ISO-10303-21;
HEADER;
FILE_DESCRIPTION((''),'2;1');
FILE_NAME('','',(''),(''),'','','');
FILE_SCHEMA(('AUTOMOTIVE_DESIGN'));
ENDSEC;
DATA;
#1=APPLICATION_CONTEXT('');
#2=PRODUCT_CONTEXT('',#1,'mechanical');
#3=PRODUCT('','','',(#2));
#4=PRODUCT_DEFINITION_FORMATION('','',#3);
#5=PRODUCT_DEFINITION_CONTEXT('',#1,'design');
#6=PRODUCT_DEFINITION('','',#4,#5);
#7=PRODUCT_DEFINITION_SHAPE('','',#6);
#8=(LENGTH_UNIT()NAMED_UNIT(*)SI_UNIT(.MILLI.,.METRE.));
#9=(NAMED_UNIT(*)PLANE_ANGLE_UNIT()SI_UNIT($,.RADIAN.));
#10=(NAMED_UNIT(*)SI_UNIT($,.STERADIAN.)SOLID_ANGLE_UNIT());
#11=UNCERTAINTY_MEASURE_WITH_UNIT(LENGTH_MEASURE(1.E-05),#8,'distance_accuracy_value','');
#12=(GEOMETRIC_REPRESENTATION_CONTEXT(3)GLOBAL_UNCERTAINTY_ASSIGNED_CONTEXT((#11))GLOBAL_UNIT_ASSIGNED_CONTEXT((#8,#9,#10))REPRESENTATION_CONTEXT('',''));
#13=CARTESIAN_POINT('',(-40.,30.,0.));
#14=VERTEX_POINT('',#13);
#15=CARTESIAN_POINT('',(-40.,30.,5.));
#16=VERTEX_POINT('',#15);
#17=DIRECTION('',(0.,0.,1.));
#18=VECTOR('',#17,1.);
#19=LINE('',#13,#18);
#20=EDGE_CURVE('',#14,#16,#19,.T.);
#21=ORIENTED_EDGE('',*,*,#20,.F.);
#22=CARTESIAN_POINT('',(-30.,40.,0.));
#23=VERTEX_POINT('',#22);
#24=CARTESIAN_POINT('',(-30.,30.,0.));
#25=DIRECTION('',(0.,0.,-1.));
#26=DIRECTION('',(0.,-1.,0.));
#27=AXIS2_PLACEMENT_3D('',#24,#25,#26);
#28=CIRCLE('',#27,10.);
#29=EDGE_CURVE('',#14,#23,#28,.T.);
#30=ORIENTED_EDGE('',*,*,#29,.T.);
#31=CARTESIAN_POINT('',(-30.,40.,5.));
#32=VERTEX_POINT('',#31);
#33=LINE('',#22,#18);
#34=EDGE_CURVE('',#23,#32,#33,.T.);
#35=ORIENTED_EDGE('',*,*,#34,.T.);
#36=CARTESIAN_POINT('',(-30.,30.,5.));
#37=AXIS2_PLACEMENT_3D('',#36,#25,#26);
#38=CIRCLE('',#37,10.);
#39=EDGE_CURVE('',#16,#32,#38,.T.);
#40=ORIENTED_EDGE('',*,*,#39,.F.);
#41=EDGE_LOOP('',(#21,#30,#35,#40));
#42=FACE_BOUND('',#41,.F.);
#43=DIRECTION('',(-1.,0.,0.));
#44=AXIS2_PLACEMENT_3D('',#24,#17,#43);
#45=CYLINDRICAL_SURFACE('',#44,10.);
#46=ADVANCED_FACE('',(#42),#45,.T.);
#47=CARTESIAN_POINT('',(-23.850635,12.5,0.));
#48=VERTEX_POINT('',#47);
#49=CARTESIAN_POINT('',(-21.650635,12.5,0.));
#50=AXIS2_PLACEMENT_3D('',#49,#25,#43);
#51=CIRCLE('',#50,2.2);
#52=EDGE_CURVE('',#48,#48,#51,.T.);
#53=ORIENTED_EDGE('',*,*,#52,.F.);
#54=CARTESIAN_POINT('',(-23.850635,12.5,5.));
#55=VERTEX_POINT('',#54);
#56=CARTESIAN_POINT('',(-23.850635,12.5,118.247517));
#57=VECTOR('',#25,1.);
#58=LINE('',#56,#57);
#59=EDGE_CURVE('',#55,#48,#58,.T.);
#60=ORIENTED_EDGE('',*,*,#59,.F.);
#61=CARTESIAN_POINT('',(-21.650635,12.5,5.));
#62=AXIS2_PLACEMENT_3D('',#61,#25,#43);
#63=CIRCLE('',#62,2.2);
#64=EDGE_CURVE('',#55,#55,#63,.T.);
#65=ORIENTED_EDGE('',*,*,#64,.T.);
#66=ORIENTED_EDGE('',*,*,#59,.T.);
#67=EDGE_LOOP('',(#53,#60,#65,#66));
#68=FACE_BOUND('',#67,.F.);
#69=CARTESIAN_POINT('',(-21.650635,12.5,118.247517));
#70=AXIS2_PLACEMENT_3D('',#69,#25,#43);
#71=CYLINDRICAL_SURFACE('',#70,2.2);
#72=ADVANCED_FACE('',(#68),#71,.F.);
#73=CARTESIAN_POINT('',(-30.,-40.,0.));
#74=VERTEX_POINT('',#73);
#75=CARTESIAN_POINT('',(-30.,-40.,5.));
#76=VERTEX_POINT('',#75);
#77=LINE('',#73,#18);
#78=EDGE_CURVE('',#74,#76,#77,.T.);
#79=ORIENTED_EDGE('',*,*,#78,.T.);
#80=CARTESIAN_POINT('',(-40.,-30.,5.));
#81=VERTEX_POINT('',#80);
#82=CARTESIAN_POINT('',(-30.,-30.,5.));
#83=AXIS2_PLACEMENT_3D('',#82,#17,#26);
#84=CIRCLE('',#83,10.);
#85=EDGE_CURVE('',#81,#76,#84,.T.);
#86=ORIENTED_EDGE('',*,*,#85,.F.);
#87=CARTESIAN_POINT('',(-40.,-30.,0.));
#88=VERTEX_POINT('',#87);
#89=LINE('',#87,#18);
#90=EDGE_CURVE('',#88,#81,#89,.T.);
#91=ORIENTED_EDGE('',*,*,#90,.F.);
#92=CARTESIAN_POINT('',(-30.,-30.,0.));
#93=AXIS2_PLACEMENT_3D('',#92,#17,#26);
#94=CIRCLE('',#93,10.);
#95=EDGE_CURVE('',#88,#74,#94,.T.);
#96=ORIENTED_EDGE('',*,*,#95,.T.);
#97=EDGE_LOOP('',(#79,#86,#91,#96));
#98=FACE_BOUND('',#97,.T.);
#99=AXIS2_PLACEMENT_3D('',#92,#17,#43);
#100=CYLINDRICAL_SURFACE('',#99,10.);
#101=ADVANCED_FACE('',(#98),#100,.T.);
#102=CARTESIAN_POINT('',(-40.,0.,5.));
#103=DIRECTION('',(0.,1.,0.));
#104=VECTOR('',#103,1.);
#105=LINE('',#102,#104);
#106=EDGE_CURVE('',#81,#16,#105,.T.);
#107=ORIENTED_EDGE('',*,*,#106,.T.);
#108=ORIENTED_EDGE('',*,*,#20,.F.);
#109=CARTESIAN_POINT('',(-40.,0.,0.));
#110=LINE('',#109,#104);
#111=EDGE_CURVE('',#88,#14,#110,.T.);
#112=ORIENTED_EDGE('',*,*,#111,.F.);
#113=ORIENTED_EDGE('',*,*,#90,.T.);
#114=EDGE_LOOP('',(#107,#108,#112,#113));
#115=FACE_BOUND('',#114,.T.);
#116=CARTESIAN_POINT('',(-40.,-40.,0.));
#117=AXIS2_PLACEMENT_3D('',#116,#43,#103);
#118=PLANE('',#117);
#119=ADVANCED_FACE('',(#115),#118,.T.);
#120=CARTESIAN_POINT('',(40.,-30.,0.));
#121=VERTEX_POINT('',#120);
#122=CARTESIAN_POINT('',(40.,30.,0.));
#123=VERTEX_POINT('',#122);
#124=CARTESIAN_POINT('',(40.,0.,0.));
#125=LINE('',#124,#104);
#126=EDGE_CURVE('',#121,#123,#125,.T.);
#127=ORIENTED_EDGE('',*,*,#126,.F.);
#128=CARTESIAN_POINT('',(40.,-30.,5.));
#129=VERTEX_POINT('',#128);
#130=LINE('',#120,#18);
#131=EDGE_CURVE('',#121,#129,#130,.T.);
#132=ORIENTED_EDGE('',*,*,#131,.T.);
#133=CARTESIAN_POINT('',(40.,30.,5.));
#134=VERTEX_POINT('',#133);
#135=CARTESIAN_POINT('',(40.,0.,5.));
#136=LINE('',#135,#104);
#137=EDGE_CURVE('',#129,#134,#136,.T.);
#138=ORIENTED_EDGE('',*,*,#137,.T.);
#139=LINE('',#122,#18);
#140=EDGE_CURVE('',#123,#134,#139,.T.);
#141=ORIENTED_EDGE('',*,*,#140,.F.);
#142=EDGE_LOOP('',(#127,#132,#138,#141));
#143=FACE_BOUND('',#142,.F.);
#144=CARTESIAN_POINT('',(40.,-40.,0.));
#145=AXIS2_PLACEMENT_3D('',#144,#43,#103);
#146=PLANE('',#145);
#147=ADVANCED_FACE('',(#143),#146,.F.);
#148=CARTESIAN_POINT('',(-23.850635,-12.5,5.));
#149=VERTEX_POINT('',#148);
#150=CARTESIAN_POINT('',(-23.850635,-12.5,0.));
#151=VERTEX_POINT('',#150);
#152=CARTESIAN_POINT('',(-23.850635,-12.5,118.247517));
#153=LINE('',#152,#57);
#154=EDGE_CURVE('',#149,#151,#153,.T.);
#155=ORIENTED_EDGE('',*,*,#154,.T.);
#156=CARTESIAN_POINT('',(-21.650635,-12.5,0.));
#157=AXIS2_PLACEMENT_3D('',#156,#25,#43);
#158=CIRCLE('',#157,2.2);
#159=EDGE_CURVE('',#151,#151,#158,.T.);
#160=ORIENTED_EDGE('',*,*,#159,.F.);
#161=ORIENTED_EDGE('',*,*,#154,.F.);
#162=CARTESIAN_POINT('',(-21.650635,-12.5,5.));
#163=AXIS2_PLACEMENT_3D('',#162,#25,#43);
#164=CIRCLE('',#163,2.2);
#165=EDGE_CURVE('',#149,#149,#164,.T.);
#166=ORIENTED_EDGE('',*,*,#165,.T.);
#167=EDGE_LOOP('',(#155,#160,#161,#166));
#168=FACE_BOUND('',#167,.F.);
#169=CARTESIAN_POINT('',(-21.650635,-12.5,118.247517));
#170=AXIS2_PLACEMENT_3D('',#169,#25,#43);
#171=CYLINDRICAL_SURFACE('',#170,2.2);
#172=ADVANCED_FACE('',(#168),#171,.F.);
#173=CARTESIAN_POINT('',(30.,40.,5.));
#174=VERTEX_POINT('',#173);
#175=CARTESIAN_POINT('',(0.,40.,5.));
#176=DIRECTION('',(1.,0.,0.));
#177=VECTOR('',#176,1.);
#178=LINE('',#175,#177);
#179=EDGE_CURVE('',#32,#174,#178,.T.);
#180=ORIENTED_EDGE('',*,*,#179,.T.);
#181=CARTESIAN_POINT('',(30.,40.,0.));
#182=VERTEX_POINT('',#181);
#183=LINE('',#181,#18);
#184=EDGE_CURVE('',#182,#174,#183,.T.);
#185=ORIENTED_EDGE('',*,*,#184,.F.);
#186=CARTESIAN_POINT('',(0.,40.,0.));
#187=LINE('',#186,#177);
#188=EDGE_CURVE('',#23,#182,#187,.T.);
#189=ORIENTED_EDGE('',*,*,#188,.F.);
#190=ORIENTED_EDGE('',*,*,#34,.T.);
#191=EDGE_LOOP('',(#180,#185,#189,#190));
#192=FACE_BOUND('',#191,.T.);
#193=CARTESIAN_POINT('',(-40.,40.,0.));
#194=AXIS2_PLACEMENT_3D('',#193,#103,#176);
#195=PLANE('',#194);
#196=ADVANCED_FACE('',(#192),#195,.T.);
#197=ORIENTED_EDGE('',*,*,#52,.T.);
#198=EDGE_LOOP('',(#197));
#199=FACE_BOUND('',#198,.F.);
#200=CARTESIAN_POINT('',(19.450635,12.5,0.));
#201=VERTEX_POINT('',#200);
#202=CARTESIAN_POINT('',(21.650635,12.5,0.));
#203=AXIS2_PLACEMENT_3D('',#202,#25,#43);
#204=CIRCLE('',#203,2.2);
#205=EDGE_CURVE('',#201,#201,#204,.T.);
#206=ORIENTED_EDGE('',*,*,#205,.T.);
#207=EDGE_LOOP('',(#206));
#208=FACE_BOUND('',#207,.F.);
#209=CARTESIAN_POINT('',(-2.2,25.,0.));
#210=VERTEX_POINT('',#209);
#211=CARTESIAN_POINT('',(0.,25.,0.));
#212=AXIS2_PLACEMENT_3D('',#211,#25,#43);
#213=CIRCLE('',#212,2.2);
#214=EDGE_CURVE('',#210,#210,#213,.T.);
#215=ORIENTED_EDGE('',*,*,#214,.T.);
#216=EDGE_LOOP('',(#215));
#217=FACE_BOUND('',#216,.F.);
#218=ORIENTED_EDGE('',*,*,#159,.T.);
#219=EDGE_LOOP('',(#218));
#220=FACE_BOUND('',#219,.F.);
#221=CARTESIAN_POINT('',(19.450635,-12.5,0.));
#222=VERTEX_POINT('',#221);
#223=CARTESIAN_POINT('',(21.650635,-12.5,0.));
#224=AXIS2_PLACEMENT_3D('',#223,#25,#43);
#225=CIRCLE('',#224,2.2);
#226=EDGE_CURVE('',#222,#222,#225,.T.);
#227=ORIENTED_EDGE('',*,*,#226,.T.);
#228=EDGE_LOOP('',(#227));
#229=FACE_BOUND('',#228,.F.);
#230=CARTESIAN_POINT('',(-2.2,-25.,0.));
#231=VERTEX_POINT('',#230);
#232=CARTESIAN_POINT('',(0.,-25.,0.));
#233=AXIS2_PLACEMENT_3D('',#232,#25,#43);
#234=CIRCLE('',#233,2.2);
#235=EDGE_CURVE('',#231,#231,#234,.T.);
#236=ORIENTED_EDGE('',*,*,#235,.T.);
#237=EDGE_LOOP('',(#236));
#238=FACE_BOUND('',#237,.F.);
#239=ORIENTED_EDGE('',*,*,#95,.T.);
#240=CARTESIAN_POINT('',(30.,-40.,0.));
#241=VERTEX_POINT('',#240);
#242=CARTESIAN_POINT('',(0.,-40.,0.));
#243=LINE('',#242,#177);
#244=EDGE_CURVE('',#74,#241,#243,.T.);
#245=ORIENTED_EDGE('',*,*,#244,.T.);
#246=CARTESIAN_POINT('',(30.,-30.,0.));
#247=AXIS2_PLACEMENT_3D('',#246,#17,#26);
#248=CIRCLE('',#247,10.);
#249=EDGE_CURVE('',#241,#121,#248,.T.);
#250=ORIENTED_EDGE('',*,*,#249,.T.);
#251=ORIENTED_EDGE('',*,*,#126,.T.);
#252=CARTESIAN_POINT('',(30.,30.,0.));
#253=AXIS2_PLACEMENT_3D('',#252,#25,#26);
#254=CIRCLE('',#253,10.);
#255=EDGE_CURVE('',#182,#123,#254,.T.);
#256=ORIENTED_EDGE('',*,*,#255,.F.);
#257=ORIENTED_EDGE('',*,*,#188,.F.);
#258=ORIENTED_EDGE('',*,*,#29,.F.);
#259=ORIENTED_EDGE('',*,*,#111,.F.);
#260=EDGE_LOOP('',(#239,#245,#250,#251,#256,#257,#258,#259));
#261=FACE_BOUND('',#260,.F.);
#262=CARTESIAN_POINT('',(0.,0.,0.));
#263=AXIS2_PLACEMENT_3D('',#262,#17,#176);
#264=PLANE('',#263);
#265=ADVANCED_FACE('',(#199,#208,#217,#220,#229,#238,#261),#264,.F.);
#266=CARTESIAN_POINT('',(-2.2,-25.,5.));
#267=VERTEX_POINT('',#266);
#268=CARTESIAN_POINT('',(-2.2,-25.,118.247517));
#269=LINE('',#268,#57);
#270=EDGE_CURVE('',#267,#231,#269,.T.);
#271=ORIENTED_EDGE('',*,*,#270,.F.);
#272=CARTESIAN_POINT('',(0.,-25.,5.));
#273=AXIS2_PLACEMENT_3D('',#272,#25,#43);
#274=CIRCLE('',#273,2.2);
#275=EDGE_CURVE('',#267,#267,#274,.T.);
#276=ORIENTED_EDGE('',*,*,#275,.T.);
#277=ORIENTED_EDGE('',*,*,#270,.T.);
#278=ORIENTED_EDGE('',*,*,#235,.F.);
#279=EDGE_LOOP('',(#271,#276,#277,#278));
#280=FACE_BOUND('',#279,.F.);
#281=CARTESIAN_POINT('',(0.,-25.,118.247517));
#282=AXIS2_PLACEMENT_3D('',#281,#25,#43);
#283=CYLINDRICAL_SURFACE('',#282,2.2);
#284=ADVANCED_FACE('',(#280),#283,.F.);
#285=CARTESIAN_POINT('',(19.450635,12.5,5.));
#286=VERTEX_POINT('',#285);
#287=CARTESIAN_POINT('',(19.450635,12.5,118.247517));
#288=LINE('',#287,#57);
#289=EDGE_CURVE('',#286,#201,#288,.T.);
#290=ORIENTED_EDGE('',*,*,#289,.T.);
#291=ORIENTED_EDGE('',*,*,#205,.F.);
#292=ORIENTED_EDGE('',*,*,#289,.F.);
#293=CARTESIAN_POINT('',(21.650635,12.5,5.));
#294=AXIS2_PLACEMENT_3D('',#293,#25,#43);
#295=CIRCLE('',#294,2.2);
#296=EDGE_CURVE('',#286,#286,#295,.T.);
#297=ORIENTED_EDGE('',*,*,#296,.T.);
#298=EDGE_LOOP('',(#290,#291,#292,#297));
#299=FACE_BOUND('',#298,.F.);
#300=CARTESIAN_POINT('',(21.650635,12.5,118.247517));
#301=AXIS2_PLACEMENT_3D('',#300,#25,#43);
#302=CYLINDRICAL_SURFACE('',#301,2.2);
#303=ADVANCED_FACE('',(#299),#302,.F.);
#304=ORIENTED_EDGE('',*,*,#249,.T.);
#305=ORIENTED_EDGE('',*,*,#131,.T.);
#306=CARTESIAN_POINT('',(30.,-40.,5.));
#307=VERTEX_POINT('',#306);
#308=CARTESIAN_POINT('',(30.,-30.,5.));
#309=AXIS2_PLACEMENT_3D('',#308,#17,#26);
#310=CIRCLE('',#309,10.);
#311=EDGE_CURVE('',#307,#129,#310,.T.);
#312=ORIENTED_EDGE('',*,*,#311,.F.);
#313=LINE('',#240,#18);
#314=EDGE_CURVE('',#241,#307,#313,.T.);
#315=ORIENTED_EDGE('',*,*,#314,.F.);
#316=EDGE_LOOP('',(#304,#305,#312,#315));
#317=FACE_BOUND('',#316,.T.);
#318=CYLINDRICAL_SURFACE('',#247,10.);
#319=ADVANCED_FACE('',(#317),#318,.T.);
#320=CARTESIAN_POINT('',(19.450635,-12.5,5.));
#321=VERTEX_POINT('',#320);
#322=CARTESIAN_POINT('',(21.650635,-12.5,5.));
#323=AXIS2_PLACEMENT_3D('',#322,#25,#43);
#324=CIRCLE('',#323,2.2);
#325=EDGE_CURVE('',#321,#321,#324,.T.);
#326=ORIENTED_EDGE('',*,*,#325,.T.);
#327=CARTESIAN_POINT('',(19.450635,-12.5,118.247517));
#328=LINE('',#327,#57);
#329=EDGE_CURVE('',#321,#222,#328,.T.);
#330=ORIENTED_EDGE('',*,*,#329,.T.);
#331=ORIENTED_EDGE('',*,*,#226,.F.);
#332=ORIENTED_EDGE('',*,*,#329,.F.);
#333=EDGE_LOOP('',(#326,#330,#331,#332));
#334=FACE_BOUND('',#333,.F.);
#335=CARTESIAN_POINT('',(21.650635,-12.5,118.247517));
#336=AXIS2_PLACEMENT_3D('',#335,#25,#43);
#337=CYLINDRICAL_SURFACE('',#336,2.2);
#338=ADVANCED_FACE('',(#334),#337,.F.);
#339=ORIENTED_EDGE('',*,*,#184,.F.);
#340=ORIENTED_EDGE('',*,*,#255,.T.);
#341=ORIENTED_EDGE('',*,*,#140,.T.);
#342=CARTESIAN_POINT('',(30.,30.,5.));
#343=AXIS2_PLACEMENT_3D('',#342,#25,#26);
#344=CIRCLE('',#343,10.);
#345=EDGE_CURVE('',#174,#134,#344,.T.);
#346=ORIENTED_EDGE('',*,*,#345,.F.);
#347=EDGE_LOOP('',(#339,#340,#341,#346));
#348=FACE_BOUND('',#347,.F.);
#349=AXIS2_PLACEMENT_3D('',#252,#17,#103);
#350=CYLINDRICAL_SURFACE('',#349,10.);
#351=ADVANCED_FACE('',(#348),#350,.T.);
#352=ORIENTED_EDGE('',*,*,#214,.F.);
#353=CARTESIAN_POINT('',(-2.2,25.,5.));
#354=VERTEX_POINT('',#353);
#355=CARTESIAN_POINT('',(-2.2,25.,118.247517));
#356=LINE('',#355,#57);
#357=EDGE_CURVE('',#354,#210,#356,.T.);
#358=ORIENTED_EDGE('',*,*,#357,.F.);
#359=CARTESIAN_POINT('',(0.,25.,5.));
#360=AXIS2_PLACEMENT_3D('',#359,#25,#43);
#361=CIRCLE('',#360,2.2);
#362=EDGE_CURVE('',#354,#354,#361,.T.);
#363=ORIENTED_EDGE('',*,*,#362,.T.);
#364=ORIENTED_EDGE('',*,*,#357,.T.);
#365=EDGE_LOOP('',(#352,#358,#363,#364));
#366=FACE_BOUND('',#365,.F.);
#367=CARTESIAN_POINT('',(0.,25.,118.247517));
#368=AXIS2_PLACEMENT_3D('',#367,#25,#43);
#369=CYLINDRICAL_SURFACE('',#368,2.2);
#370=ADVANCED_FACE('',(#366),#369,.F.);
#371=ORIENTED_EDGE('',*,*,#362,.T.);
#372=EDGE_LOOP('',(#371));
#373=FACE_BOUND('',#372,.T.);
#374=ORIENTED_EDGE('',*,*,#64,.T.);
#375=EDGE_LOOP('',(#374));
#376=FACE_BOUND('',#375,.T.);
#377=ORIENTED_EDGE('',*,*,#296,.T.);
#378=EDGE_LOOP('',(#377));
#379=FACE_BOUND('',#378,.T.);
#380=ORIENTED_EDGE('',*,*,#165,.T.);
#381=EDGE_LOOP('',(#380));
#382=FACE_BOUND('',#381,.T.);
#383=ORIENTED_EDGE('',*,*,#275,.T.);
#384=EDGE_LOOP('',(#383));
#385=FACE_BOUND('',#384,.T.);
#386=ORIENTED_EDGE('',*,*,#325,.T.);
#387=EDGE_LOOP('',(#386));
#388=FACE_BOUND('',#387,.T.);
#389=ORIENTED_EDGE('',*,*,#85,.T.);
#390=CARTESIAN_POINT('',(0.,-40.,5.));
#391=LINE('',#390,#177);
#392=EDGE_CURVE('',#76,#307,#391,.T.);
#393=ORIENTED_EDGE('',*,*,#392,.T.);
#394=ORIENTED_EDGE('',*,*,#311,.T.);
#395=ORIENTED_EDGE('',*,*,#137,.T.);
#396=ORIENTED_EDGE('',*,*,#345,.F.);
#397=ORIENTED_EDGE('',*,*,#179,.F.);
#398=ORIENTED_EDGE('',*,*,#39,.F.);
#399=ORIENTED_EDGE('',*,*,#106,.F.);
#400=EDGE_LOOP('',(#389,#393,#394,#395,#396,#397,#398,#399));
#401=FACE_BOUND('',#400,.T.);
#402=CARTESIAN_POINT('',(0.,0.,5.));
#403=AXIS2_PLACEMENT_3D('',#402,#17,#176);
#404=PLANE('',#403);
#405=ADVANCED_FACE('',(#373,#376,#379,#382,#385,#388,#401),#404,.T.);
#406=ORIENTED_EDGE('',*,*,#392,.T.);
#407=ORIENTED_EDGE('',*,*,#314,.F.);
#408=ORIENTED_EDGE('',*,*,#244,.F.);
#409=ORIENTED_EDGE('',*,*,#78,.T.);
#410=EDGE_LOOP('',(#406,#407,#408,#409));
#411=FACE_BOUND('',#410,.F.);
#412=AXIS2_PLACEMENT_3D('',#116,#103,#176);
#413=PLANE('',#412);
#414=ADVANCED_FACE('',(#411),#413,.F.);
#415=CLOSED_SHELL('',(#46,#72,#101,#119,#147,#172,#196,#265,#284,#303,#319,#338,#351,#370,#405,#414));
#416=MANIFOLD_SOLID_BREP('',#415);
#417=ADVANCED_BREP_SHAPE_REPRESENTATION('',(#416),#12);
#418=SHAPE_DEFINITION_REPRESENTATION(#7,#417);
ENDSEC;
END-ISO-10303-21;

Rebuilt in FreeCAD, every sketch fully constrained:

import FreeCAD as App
import Part
import Sketcher

V = App.Vector


def edges_at(feature, points):
    """Names of the edges that pass closest to the given points."""
    edges = feature.Shape.Edges
    near = lambda p: min(range(len(edges)), key=lambda i: edges[i].distToShape(Part.Vertex(*p))[0])
    return sorted({f"Edge{near(p) + 1}" for p in points})


def add_polygon(sketch, points):
    """Adds a closed chain of lines whose ends are joined by coincident constraints."""
    first, n = sketch.GeometryCount, len(points)
    for a, b in zip(points, points[1:] + points[:1]):
        sketch.addGeometry(Part.LineSegment(App.Vector(*a, 0), App.Vector(*b, 0)), False)
    for i in range(n):
        sketch.addConstraint(Sketcher.Constraint("Coincident", first + i, 2, first + (i + 1) % n, 1))

doc = App.newDocument("Part")
body = doc.addObject("PartDesign::Body", "Body")

sketch1 = body.newObject("Sketcher::SketchObject", "Sketch")
sketch1.AttachmentSupport = (doc.getObject("XY_Plane"), [""])
sketch1.MapMode = "FlatFace"
add_polygon(sketch1, [(-40, 40), (-40, -40), (40, -40), (40, 40)])
sketch1.addConstraint([
    Sketcher.Constraint("Vertical", 0),
    Sketcher.Constraint("Horizontal", 1),
    Sketcher.Constraint("Vertical", 2),
    Sketcher.Constraint("Horizontal", 3),
    Sketcher.Constraint("Symmetric", 0, 2, 2, 2, -1, 1),
    Sketcher.Constraint("Equal", 3, 0),
    Sketcher.Constraint("DistanceX", 1, 1, 1, 2, 80.0),
])
pad1 = body.newObject("PartDesign::Pad", "Pad")
pad1.Profile = sketch1
pad1.Length = 5

sketch2 = body.newObject("Sketcher::SketchObject", "Sketch001")
sketch2.AttachmentSupport = (doc.getObject("XY_Plane"), [""])
sketch2.MapMode = "FlatFace"
sketch2.AttachmentOffset = App.Placement(V(0, 0, 5), App.Rotation())
sketch2.addGeometry([
    Part.Circle(V(0, 25, 0), V(0, 0, 1), 2.2),
    Part.Circle(V(21.7, 12.5, 0), V(0, 0, 1), 2.2),
    Part.Circle(V(21.7, -12.5, 0), V(0, 0, 1), 2.2),
    Part.Circle(V(0, -25, 0), V(0, 0, 1), 2.2),
    Part.Circle(V(-21.7, -12.5, 0), V(0, 0, 1), 2.2),
    Part.Circle(V(-21.7, 12.5, 0), V(0, 0, 1), 2.2),
], False)
sketch2.addConstraint([
    Sketcher.Constraint("Equal", 0, 1),
    Sketcher.Constraint("Equal", 1, 2),
    Sketcher.Constraint("Equal", 2, 3),
    Sketcher.Constraint("Equal", 3, 4),
    Sketcher.Constraint("Equal", 4, 5),
    Sketcher.Constraint("Symmetric", 0, 3, 3, 3, -1, 1),
    Sketcher.Constraint("Symmetric", 1, 3, 4, 3, -1, 1),
    Sketcher.Constraint("Symmetric", 2, 3, 5, 3, -1, 1),
    Sketcher.Constraint("Symmetric", 2, 3, 4, 3, -2),
    Sketcher.Constraint("PointOnObject", 0, 3, -2),
    Sketcher.Constraint("Diameter", 0, 4.4),
    Sketcher.Constraint("DistanceY", -1, 1, 0, 3, 25.0),
    Sketcher.Constraint("DistanceY", 2, 3, 1, 3, 25.0),
    Sketcher.Constraint("DistanceX", 4, 3, 2, 3, 43.30127),
])
doc.recompute()
hole = body.newObject("PartDesign::Hole", "Hole")
hole.Profile = sketch2
hole.ThreadType = "None"
hole.Diameter = 4.4
hole.DepthType = "ThroughAll"
doc.recompute()

fillet = body.newObject("PartDesign::Fillet", "Fillet")
fillet.Base = (hole, edges_at(hole, [
    (40, -40, 2.5),
    (40, 40, 2.5),
    (-40, -40, 2.5),
    (-40, 40, 2.5),
]))
fillet.Radius = 10

doc.recompute()
